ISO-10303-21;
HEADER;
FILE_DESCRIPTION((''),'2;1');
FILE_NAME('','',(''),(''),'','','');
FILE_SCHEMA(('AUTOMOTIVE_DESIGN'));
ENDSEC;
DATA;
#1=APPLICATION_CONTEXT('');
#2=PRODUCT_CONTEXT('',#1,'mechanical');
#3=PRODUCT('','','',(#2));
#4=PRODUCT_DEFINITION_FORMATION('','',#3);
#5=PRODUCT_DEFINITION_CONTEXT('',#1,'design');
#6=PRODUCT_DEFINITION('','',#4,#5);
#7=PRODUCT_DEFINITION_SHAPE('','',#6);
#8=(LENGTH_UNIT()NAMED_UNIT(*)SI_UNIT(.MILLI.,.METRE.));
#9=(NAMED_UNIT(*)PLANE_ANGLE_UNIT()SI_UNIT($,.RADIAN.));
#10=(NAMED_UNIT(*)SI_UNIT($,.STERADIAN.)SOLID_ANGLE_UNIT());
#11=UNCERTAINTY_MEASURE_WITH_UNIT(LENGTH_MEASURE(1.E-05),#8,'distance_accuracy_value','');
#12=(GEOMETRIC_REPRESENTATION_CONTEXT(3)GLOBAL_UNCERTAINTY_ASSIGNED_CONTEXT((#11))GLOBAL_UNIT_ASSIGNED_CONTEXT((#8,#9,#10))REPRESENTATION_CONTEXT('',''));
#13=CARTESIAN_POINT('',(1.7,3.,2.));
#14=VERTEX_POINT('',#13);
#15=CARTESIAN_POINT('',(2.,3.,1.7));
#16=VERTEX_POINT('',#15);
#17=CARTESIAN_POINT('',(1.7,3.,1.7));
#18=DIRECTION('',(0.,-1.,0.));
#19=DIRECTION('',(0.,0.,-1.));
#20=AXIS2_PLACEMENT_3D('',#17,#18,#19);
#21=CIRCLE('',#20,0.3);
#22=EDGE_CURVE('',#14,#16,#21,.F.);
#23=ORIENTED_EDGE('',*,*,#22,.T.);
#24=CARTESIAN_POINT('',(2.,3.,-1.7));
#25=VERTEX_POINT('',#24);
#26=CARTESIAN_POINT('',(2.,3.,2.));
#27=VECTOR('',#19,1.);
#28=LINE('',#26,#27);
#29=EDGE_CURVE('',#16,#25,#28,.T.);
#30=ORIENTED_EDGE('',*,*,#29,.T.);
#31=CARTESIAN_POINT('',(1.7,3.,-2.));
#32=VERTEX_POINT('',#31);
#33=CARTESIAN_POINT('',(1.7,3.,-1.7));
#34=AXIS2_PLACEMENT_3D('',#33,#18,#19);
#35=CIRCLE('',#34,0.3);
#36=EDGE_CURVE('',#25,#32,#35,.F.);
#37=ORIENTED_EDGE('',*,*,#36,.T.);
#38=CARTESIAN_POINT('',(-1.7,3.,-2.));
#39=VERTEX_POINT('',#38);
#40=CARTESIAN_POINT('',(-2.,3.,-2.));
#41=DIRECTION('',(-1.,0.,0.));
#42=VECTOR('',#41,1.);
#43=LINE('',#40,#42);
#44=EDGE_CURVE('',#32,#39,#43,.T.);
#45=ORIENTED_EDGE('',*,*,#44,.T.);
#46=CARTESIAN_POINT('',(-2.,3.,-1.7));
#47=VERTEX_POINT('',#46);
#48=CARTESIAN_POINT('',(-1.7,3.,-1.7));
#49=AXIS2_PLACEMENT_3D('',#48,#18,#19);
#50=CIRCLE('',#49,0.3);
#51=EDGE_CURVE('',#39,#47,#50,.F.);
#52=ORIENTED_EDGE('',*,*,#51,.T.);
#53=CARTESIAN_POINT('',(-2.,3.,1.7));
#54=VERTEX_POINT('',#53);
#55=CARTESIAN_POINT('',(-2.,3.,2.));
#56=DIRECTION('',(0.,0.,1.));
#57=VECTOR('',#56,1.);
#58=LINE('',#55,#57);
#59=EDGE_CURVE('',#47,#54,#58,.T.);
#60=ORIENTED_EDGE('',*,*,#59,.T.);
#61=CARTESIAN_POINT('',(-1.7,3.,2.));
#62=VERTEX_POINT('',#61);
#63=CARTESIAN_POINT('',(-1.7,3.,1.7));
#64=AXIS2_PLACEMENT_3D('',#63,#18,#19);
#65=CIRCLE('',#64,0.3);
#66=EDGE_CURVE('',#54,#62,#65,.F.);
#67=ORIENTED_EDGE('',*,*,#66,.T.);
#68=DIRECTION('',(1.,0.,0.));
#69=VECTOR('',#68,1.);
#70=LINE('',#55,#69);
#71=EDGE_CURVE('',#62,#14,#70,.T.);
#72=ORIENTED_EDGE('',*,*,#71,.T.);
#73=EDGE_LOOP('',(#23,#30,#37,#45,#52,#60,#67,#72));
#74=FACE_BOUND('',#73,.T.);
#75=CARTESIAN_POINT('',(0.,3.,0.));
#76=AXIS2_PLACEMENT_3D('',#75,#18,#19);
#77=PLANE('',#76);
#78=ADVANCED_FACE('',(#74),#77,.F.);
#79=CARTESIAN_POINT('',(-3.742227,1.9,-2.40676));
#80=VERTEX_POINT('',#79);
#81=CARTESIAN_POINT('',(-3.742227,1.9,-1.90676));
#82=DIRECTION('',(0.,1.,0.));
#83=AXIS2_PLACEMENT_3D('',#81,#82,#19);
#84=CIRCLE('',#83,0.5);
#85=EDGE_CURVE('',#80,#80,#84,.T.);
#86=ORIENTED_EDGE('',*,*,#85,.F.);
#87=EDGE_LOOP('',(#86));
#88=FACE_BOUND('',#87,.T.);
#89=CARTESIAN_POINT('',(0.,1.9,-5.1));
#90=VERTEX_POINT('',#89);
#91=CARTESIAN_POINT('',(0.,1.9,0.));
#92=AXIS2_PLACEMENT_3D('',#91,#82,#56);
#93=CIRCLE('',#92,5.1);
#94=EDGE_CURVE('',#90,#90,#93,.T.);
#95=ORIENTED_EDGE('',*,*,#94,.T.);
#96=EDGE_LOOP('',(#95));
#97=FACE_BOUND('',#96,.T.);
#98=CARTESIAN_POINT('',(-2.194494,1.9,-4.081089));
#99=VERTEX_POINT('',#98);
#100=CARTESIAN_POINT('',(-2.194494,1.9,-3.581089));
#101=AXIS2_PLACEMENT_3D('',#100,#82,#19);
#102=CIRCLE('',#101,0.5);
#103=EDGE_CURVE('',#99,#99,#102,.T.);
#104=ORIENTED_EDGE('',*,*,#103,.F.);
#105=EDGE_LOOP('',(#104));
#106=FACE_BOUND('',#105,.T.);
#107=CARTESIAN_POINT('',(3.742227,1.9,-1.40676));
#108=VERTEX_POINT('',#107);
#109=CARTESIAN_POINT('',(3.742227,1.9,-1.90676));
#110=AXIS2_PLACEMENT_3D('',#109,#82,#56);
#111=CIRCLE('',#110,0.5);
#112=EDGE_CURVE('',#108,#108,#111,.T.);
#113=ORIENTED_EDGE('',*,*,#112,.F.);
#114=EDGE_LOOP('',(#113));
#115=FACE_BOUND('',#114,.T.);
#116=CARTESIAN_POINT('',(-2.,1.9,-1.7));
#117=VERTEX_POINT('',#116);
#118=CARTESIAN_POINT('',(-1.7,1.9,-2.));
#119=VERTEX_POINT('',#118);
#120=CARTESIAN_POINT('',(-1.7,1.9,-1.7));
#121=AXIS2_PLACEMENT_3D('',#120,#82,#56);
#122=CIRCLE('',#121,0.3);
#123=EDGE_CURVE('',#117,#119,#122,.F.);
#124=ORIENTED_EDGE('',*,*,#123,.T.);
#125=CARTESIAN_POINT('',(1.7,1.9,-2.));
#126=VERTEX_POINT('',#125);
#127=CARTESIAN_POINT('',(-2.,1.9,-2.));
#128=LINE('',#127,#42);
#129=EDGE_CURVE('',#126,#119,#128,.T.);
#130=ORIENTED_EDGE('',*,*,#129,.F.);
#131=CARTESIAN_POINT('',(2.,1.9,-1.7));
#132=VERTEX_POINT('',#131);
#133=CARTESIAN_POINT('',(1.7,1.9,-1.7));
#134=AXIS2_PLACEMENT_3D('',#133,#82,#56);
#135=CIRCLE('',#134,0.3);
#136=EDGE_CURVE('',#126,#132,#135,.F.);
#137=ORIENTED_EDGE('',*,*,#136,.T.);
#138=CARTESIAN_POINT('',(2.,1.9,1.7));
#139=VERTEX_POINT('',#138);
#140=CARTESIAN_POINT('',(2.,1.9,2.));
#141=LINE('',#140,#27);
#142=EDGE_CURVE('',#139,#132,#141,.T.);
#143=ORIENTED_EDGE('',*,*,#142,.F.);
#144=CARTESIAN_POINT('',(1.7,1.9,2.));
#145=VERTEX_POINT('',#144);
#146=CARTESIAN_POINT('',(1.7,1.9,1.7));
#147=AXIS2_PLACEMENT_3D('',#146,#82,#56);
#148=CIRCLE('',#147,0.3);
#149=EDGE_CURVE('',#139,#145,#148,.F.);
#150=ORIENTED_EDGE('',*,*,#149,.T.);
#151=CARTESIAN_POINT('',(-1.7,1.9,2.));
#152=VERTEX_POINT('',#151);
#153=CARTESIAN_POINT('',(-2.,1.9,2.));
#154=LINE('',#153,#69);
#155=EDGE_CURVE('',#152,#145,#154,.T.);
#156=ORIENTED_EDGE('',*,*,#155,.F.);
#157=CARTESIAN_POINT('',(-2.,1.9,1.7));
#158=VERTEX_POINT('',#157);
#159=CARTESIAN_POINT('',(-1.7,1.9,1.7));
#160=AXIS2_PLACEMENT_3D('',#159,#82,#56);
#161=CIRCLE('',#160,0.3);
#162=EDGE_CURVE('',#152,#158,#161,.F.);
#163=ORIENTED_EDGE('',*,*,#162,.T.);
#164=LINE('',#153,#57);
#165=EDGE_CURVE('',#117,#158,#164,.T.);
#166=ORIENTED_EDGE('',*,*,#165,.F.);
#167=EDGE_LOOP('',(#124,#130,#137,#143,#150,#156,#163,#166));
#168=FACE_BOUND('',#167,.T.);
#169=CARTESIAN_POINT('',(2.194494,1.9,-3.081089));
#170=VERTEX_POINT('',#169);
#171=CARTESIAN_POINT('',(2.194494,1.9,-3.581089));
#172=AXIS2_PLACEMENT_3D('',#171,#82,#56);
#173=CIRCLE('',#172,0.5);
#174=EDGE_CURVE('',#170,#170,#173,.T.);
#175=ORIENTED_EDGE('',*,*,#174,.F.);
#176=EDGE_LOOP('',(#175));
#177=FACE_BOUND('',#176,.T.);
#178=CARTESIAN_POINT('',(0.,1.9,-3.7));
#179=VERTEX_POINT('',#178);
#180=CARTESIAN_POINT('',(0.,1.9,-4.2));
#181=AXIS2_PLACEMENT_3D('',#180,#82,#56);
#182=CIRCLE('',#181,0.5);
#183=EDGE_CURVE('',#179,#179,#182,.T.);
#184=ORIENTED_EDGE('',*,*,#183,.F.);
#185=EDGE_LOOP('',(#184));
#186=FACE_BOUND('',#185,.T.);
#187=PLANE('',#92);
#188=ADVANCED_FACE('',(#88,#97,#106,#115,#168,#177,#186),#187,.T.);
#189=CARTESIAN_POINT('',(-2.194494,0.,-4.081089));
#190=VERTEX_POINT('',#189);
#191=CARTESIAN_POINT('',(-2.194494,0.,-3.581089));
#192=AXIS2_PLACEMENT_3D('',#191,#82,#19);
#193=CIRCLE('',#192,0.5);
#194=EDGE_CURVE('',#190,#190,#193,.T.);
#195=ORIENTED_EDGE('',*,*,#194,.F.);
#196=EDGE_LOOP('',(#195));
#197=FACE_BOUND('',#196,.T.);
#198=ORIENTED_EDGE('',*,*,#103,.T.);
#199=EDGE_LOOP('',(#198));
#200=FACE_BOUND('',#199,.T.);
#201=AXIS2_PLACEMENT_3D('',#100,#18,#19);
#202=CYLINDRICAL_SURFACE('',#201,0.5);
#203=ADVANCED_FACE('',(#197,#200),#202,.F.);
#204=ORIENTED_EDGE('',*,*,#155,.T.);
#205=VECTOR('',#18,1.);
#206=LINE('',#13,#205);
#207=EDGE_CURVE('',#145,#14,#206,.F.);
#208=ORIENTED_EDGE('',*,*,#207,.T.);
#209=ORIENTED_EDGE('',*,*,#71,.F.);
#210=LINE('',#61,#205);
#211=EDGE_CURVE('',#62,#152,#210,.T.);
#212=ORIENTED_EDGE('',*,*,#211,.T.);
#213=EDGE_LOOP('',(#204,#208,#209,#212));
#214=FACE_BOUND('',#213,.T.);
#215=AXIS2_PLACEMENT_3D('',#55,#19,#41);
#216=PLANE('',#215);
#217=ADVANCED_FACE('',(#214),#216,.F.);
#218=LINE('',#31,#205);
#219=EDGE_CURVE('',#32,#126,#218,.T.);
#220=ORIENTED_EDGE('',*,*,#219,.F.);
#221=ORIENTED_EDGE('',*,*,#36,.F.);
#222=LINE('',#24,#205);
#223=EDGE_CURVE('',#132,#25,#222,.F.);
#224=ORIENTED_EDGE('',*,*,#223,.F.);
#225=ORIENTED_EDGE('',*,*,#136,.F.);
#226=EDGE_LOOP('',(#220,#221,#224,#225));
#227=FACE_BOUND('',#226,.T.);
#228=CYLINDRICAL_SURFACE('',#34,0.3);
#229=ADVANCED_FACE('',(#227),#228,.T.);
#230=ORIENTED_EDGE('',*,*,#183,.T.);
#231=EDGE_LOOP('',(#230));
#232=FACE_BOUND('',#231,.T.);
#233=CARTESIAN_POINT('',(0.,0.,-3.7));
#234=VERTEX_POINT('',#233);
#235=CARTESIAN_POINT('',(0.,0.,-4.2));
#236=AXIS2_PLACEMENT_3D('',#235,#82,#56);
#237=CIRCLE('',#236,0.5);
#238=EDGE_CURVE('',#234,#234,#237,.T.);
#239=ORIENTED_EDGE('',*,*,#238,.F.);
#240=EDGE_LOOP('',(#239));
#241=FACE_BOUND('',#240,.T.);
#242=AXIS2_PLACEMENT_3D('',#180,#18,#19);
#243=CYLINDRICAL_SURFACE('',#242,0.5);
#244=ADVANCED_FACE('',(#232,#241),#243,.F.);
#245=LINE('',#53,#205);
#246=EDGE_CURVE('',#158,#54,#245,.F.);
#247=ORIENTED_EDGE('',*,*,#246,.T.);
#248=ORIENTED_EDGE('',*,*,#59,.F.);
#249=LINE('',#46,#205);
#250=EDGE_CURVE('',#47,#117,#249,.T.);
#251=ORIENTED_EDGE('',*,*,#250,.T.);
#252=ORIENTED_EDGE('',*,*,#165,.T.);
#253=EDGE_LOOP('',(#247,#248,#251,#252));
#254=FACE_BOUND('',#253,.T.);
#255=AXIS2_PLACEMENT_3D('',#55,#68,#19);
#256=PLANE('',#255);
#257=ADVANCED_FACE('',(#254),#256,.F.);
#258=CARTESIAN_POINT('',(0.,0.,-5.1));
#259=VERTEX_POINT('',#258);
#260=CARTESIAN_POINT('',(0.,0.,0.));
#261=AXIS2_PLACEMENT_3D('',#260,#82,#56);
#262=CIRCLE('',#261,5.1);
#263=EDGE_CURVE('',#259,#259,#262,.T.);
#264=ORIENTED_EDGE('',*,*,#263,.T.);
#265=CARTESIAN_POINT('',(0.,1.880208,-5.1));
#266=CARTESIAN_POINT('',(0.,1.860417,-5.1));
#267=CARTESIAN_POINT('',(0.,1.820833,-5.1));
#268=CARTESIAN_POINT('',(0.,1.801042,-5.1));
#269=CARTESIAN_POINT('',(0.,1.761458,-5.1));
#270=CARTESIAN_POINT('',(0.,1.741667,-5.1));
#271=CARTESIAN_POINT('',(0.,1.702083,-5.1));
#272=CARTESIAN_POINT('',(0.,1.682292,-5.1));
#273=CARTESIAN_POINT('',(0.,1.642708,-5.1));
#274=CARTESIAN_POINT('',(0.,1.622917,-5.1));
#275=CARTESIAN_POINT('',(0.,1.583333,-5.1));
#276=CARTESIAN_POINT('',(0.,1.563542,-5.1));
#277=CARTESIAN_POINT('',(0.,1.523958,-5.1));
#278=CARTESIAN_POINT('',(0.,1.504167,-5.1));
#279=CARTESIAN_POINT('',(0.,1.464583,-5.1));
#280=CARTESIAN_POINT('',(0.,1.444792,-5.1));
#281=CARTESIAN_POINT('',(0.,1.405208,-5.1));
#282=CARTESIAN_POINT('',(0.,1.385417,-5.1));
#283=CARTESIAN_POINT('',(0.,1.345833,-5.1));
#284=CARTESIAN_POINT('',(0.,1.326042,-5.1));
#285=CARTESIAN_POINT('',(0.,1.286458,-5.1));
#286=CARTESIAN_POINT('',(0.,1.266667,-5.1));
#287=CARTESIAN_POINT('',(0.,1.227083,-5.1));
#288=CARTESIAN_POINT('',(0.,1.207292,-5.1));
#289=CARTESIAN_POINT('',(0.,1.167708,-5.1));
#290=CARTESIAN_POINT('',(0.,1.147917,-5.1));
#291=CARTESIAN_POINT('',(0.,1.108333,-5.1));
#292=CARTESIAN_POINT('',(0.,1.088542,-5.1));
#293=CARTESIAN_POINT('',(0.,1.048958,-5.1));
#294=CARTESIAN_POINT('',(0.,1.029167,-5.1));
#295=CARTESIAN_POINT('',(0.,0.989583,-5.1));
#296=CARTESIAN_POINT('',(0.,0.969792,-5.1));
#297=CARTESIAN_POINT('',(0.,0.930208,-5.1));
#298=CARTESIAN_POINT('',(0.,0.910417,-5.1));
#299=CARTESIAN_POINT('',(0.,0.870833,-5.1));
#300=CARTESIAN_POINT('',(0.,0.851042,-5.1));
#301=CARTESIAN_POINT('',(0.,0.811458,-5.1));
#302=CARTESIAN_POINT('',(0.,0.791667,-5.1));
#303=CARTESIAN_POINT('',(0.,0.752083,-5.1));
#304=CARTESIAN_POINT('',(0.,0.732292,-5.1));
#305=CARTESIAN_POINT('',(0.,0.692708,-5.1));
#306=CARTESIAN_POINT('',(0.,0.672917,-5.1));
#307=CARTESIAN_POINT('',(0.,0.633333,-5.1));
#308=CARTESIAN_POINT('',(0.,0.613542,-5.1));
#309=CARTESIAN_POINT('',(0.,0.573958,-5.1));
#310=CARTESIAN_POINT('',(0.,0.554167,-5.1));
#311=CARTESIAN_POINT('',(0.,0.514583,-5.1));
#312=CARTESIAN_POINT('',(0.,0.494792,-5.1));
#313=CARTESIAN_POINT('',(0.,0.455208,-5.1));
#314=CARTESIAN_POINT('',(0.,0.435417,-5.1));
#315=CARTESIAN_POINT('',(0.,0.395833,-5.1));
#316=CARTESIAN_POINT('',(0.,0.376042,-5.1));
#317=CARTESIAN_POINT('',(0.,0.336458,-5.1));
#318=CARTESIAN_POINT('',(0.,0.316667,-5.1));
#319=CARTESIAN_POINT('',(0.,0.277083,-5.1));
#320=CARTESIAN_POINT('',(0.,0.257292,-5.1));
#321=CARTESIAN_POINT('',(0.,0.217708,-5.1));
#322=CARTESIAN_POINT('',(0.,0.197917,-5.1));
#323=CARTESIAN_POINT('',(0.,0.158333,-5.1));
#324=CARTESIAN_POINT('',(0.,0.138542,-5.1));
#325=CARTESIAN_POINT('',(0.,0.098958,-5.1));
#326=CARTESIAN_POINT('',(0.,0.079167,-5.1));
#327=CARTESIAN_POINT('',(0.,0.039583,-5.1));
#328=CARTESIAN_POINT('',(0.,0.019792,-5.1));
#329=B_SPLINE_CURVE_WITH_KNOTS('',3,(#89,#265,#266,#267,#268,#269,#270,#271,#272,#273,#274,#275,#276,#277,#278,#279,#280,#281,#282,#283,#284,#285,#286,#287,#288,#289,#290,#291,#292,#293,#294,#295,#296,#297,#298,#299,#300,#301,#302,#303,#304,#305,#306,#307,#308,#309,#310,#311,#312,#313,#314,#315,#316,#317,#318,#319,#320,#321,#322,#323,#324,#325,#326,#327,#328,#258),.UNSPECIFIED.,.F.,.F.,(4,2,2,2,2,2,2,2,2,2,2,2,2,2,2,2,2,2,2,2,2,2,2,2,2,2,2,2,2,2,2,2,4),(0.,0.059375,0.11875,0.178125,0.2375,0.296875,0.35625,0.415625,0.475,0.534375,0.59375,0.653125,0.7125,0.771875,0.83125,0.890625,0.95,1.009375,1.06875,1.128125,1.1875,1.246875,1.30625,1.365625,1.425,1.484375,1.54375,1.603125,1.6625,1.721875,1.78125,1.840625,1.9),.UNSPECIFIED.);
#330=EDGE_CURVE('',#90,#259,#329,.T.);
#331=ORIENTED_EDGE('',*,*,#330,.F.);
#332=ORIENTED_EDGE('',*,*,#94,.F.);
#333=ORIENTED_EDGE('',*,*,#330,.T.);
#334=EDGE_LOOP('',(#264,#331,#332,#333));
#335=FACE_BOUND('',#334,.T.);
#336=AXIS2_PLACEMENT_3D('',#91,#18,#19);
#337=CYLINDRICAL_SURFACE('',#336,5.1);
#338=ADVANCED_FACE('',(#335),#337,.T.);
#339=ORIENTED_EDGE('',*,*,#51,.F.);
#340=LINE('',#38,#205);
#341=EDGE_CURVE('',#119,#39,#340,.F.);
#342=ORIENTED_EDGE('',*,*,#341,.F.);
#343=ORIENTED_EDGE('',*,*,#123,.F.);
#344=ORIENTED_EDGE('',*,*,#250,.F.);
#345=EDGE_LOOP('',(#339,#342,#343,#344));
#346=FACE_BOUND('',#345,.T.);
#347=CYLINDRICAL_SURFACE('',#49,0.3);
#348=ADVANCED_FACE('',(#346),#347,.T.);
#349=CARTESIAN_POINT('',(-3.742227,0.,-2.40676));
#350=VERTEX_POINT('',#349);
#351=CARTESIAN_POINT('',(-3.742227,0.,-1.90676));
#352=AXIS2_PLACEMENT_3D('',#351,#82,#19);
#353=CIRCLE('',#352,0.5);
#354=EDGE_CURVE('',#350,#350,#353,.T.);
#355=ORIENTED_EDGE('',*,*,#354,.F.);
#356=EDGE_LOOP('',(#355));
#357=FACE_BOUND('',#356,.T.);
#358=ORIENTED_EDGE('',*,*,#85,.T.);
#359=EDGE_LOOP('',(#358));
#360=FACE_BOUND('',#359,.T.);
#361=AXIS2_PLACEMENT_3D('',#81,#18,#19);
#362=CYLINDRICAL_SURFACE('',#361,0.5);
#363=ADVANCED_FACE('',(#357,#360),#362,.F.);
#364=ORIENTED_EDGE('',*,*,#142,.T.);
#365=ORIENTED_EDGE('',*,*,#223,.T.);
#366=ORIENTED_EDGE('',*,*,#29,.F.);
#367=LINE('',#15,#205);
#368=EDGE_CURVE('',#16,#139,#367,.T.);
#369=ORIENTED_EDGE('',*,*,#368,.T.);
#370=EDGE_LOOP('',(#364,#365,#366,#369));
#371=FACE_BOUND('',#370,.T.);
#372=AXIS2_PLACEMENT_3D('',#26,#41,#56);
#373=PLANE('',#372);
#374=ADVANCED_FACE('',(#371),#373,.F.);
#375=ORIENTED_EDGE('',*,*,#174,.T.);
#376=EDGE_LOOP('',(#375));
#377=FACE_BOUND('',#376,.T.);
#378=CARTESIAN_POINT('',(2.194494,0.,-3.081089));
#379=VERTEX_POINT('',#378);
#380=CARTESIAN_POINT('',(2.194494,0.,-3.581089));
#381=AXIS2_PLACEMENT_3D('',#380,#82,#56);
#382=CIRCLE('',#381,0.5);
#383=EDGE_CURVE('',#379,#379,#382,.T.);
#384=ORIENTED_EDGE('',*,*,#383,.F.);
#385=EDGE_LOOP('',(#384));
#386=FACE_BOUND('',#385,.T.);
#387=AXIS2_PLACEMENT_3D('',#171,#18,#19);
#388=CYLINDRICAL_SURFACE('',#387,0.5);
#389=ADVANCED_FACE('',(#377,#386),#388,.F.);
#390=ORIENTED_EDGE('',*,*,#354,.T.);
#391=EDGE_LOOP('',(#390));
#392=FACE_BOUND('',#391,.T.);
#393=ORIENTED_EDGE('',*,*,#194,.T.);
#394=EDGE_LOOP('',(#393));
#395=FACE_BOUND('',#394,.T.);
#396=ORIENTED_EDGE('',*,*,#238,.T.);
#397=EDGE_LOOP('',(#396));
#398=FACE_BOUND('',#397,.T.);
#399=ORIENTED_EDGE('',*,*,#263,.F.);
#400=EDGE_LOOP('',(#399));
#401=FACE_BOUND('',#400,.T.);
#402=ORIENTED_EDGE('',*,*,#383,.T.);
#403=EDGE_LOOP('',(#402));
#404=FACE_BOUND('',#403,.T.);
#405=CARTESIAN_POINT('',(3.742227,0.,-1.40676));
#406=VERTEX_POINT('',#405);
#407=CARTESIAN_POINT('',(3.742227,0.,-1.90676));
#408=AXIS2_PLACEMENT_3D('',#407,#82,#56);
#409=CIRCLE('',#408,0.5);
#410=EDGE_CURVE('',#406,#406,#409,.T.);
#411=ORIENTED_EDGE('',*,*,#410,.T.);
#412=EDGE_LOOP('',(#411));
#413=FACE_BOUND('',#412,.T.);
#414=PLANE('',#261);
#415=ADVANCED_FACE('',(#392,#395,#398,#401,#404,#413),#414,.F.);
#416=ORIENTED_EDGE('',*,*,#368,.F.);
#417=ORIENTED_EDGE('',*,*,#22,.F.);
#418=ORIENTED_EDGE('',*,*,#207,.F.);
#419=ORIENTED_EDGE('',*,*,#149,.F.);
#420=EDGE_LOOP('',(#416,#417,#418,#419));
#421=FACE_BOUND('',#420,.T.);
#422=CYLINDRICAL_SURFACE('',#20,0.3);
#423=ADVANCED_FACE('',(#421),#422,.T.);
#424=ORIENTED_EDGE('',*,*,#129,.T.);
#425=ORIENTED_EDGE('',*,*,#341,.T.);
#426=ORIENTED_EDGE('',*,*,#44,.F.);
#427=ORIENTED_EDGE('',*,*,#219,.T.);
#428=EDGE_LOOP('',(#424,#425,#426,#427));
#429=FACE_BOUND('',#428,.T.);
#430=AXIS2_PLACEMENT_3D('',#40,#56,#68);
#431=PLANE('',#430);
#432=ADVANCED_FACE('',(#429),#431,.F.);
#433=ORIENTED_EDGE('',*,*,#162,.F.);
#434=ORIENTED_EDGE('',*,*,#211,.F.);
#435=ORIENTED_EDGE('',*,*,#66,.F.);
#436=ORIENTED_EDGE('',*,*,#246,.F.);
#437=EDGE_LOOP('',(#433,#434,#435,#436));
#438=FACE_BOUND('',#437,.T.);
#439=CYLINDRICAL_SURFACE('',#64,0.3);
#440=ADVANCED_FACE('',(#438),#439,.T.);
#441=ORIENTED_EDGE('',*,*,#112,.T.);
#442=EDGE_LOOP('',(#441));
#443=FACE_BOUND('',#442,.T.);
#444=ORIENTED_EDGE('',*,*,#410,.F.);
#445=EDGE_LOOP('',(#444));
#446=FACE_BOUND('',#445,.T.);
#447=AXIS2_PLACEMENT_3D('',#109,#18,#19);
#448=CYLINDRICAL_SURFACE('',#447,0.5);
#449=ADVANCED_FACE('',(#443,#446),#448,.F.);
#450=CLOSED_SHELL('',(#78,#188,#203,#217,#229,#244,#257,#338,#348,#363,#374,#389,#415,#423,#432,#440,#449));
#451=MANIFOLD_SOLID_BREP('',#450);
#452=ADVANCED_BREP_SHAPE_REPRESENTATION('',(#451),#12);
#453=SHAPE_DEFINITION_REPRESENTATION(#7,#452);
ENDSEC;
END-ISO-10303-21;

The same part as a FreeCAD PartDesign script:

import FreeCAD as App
import Part
import Sketcher
from FreeCAD import Vector


def edges_at(feature, points):
    """Names of the edges that pass closest to the given points."""
    edges = feature.Shape.Edges
    near = lambda p: min(range(len(edges)), key=lambda i: edges[i].distToShape(Part.Vertex(*p))[0])
    return sorted({f"Edge{near(p) + 1}" for p in points})


def add_polygon(sketch, points):
    """Adds a closed chain of lines whose ends are joined by coincident constraints."""
    first, n = sketch.GeometryCount, len(points)
    for a, b in zip(points, points[1:] + points[:1]):
        sketch.addGeometry(Part.LineSegment(App.Vector(*a, 0), App.Vector(*b, 0)), False)
    for i in range(n):
        sketch.addConstraint(Sketcher.Constraint("Coincident", first + i, 2, first + (i + 1) % n, 1))

doc = App.newDocument("Part")
body = doc.addObject("PartDesign::Body", "Body")

# Sketch on XZ plane
sketch1 = body.newObject("Sketcher::SketchObject", "Sketch")
sketch1.AttachmentSupport = (doc.getObject("XZ_Plane"), [""])
sketch1.MapMode = "FlatFace"
sketch1.addGeometry([
    Part.Circle(Vector(0, 0, 0), Vector(0, 0, 1), 5.1),  # 0
    Part.Circle(Vector(3.7, -1.9, 0), Vector(0, 0, 1), 0.5),  # 1
    Part.Circle(Vector(2.2, -3.6, 0), Vector(0, 0, 1), 0.5),  # 2
    Part.Circle(Vector(-3.7, -1.9, 0), Vector(0, 0, 1), 0.5),  # 3
    Part.Circle(Vector(0, -4.2, 0), Vector(0, 0, 1), 0.5),  # 4
    Part.Circle(Vector(-2.2, -3.6, 0), Vector(0, 0, 1), 0.5),  # 5
], False)
sketch1.addConstraint([
    Sketcher.Constraint("Coincident", 0, 3, -1, 1),
    Sketcher.Constraint("Equal", 1, 2),
    Sketcher.Constraint("Equal", 2, 3),
    Sketcher.Constraint("Equal", 3, 4),
    Sketcher.Constraint("Equal", 4, 5),
    Sketcher.Constraint("Symmetric", 1, 3, 3, 3, -2),
    Sketcher.Constraint("Symmetric", 2, 3, 5, 3, -2),
    Sketcher.Constraint("PointOnObject", 4, 3, -2),
    Sketcher.Constraint("Diameter", 1, 1.0),
    Sketcher.Constraint("Diameter", 0, 10.2),
    Sketcher.Constraint("DistanceY", 4, 3, -1, 1, 4.2),
    Sketcher.Constraint("DistanceY", 1, 3, -1, 1, 1.90676),
    Sketcher.Constraint("DistanceY", 2, 3, -1, 1, 3.581089),
    Sketcher.Constraint("DistanceX", 3, 3, 2, 3, 5.936721),
    Sketcher.Constraint("DistanceX", -1, 1, 1, 3, 3.742227),
])
pad1 = body.newObject("PartDesign::Pad", "Pad")
pad1.Profile = sketch1
pad1.Length = 1.9
pad1.Reversed = True

# Sketch on XZ plane
sketch2 = body.newObject("Sketcher::SketchObject", "Sketch001")
sketch2.AttachmentSupport = (doc.getObject("XZ_Plane"), [""])
sketch2.MapMode = "FlatFace"
sketch2.AttachmentOffset = App.Placement(Vector(0, 0, -1.9), App.Rotation())
add_polygon(sketch2, [(-2, -2), (-2, 2), (2, 2), (2, -2)])  # lines 0-3
sketch2.addConstraint([
    Sketcher.Constraint("Vertical", 0),
    Sketcher.Constraint("Horizontal", 1),
    Sketcher.Constraint("Vertical", 2),
    Sketcher.Constraint("Horizontal", 3),
    Sketcher.Constraint("Symmetric", 0, 2, 2, 2, -1, 1),
    Sketcher.Constraint("Equal", 3, 0),
    Sketcher.Constraint("DistanceX", 1, 1, 1, 2, 4.0),
])
pad2 = body.newObject("PartDesign::Pad", "Pad001")
pad2.Profile = sketch2
pad2.Length = 1.1
pad2.Reversed = True
doc.recompute()

fillet = body.newObject("PartDesign::Fillet", "Fillet")
fillet.Base = (pad2, edges_at(pad2, [
    (2, 2.45, 2),
    (2, 2.45, -2),
    (-2, 2.45, -2),
    (-2, 2.45, 2),
]))
fillet.Radius = 0.3

doc.recompute()
